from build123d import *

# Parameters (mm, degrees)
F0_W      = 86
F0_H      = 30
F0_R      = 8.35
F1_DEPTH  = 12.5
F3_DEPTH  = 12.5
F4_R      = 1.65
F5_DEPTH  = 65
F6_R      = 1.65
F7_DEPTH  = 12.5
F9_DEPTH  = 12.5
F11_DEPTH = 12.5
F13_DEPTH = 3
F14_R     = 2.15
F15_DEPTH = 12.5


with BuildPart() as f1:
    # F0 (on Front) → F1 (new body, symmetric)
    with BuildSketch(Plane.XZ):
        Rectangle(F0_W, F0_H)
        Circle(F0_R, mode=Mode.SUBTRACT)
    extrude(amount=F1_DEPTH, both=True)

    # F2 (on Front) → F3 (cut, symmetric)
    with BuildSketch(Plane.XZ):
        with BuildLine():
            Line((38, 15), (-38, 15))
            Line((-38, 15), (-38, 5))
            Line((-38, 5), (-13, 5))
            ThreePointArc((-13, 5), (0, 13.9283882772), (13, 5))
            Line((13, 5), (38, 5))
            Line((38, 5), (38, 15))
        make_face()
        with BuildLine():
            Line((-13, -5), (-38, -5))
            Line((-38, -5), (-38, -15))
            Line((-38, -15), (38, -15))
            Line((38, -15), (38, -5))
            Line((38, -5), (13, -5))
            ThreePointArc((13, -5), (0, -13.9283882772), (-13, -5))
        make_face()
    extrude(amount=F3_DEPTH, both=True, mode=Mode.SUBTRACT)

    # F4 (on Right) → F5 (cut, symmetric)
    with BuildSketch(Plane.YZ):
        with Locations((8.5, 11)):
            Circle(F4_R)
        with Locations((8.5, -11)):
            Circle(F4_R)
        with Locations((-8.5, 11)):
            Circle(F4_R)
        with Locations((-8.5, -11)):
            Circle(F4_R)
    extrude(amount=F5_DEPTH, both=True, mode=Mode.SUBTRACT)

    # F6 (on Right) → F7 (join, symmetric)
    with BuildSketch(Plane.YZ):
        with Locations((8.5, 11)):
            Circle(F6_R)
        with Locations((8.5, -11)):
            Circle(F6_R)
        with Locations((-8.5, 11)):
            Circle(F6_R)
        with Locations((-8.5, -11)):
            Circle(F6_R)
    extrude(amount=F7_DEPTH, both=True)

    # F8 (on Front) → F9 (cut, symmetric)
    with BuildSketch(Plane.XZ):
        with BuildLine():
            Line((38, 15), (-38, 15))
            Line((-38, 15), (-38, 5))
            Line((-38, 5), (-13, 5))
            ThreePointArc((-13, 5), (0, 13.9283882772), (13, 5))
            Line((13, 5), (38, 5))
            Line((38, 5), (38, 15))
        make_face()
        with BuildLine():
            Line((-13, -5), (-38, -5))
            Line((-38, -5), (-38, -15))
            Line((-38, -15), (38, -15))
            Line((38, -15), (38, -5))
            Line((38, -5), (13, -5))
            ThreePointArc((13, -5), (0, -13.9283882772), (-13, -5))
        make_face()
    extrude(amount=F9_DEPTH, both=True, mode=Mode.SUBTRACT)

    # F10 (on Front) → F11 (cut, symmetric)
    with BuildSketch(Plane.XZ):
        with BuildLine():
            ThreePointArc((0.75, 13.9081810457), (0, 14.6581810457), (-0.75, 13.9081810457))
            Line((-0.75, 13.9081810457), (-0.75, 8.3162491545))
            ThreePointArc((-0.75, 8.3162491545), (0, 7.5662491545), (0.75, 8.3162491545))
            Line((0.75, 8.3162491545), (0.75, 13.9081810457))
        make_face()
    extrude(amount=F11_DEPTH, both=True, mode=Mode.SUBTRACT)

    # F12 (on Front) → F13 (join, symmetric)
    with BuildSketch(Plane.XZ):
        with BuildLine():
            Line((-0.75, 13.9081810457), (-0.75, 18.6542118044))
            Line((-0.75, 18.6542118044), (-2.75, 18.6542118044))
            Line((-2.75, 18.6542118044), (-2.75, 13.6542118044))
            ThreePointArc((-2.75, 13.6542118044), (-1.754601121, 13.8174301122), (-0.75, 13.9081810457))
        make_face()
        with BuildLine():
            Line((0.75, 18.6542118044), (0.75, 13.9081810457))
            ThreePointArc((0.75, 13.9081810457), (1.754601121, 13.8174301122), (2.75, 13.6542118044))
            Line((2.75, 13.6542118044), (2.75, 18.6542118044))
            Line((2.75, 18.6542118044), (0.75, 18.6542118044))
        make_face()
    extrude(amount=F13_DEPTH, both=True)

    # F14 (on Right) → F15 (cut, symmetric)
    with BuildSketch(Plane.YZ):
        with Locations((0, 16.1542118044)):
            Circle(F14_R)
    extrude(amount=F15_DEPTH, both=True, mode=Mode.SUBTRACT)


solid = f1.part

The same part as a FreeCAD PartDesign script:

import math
import FreeCAD as App
import Part
import Sketcher
from FreeCAD import Vector
Q = App.Units.Quantity

doc = App.newDocument("Part")
params = doc.addObject("Spreadsheet::Sheet", "Params")
for row, (alias, value) in enumerate([
    ("sketch1_diameter", "16.7 mm"),
    ("sketch1_width", "86 mm"),
    ("sketch1_height", "30 mm"),
    ("pad1_length", "25 mm"),
    ("sketch2_width", "76 mm"),
    ("sketch2_width2", "25 mm"),
    ("sketch2_height", "10 mm"),
    ("pocket1_length", "25 mm"),
    ("sketch3_diameter", "3.3 mm"),
    ("pocket2_length", "130 mm"),
    ("sketch4_diameter", "3.3 mm"),
    ("pad2_length", "25 mm"),
    ("sketch5_width", "76 mm"),
    ("sketch5_width2", "25 mm"),
    ("sketch5_height", "10 mm"),
    ("pocket3_length", "25 mm"),
    ("sketch6_radius", "0.75 mm"),
    ("pocket4_length", "25 mm"),
    ("sketch7_width", "2 mm"),
    ("sketch7_height", "5 mm"),
    ("pad3_length", "6 mm"),
    ("sketch8_diameter", "4.3 mm"),
    ("pocket5_length", "25 mm"),
], start=1):
    params.set(f"A{row}", alias)
    params.set(f"B{row}", "=" + value)
    params.setAlias(f"B{row}", alias)

body = doc.addObject("PartDesign::Body", "Body")

# Sketch on XZ plane
sketch1 = body.newObject("Sketcher::SketchObject", "Sketch")
sketch1.AttachmentSupport = (doc.getObject("XZ_Plane"), [""])
sketch1.MapMode = "FlatFace"
sketch1.addGeometry(Part.LineSegment(Vector(-43, 15, 0), Vector(-43, -15, 0)), False)
sketch1.addGeometry(Part.LineSegment(Vector(-43, -15, 0), Vector(43, -15, 0)), False)
sketch1.addGeometry(Part.LineSegment(Vector(43, -15, 0), Vector(43, 15, 0)), False)
sketch1.addGeometry(Part.LineSegment(Vector(43, 15, 0), Vector(-43, 15, 0)), False)
sketch1.addGeometry(Part.Circle(Vector(0, 0, 0), Vector(0, 0, 1), 8), False)
sketch1.addConstraint(Sketcher.Constraint("Coincident", 0, 2, 1, 1))
sketch1.addConstraint(Sketcher.Constraint("Coincident", 1, 2, 2, 1))
sketch1.addConstraint(Sketcher.Constraint("Coincident", 2, 2, 3, 1))
sketch1.addConstraint(Sketcher.Constraint("Coincident", 3, 2, 0, 1))
sketch1.addConstraint(Sketcher.Constraint("Vertical", 0))
sketch1.addConstraint(Sketcher.Constraint("Horizontal", 1))
sketch1.addConstraint(Sketcher.Constraint("Vertical", 2))
sketch1.addConstraint(Sketcher.Constraint("Horizontal", 3))
sketch1.addConstraint(Sketcher.Constraint("Coincident", 4, 3, -1, 1))
sketch1.addConstraint(Sketcher.Constraint("Symmetric", 0, 2, 2, 2, -1, 1))
sketch1.addConstraint(Sketcher.Constraint("Diameter", 4, Q("16.7 mm")))
sketch1.addConstraint(Sketcher.Constraint("DistanceX", 1, 1, 1, 2, Q("86 mm")))
sketch1.addConstraint(Sketcher.Constraint("DistanceY", 0, 2, 0, 1, Q("30 mm")))
sketch1.setExpression("Constraints[10]", "Params.sketch1_diameter")
sketch1.setExpression("Constraints[11]", "Params.sketch1_width")
sketch1.setExpression("Constraints[12]", "Params.sketch1_height")
pad1 = body.newObject("PartDesign::Pad", "Pad")
pad1.Profile = sketch1
pad1.setExpression("Length", "Params.pad1_length")
pad1.Midplane = True

# Sketch on XZ plane
sketch2 = body.newObject("Sketcher::SketchObject", "Sketch001")
sketch2.AttachmentSupport = (doc.getObject("XZ_Plane"), [""])
sketch2.MapMode = "FlatFace"
sketch2.addGeometry(Part.LineSegment(Vector(38, 15, 0), Vector(-38, 15, 0)), False)
sketch2.addGeometry(Part.LineSegment(Vector(-38, 15, 0), Vector(-38, 5, 0)), False)
sketch2.addGeometry(Part.LineSegment(Vector(-38, 5, 0), Vector(-13, 5, 0)), False)
sketch2.addGeometry(Part.ArcOfCircle(Part.Circle(Vector(0, 0, 0), Vector(0, 0, 1), 14), math.radians(21), math.radians(159)), False)
sketch2.addGeometry(Part.LineSegment(Vector(13, 5, 0), Vector(38, 5, 0)), False)
sketch2.addGeometry(Part.LineSegment(Vector(38, 5, 0), Vector(38, 15, 0)), False)
sketch2.addGeometry(Part.LineSegment(Vector(-13, -5, 0), Vector(-38, -5, 0)), False)
sketch2.addGeometry(Part.LineSegment(Vector(-38, -5, 0), Vector(-38, -15, 0)), False)
sketch2.addGeometry(Part.LineSegment(Vector(-38, -15, 0), Vector(38, -15, 0)), False)
sketch2.addGeometry(Part.LineSegment(Vector(38, -15, 0), Vector(38, -5, 0)), False)
sketch2.addGeometry(Part.LineSegment(Vector(38, -5, 0), Vector(13, -5, 0)), False)
sketch2.addGeometry(Part.ArcOfCircle(Part.Circle(Vector(0, 0, 0), Vector(0, 0, 1), 14), math.radians(-159), math.radians(-21)), False)
sketch2.addConstraint(Sketcher.Constraint("Coincident", 0, 2, 1, 1))
sketch2.addConstraint(Sketcher.Constraint("Coincident", 1, 2, 2, 1))
sketch2.addConstraint(Sketcher.Constraint("Coincident", 2, 2, 3, 2))
sketch2.addConstraint(Sketcher.Constraint("Coincident", 3, 1, 4, 1))
sketch2.addConstraint(Sketcher.Constraint("Coincident", 4, 2, 5, 1))
sketch2.addConstraint(Sketcher.Constraint("Coincident", 5, 2, 0, 1))
sketch2.addConstraint(Sketcher.Constraint("Coincident", 6, 2, 7, 1))
sketch2.addConstraint(Sketcher.Constraint("Coincident", 7, 2, 8, 1))
sketch2.addConstraint(Sketcher.Constraint("Coincident", 8, 2, 9, 1))
sketch2.addConstraint(Sketcher.Constraint("Coincident", 9, 2, 10, 1))
sketch2.addConstraint(Sketcher.Constraint("Coincident", 10, 2, 11, 2))
sketch2.addConstraint(Sketcher.Constraint("Coincident", 11, 1, 6, 1))
sketch2.addConstraint(Sketcher.Constraint("Horizontal", 0))
sketch2.addConstraint(Sketcher.Constraint("Vertical", 1))
sketch2.addConstraint(Sketcher.Constraint("Horizontal", 2))
sketch2.addConstraint(Sketcher.Constraint("Horizontal", 4))
sketch2.addConstraint(Sketcher.Constraint("Vertical", 5))
sketch2.addConstraint(Sketcher.Constraint("Horizontal", 6))
sketch2.addConstraint(Sketcher.Constraint("Vertical", 7))
sketch2.addConstraint(Sketcher.Constraint("Horizontal", 8))
sketch2.addConstraint(Sketcher.Constraint("Vertical", 9))
sketch2.addConstraint(Sketcher.Constraint("Horizontal", 10))
sketch2.addConstraint(Sketcher.Constraint("Coincident", 3, 3, -1, 1))
sketch2.addConstraint(Sketcher.Constraint("Coincident", 11, 3, -1, 1))
sketch2.addConstraint(Sketcher.Constraint("Equal", 3, 11))
sketch2.addConstraint(Sketcher.Constraint("Symmetric", 4, 2, 6, 2, -1, 1))
sketch2.addConstraint(Sketcher.Constraint("Symmetric", 0, 2, 8, 2, -1, 1))
sketch2.addConstraint(Sketcher.Constraint("Symmetric", 1, 2, 4, 2, -2))
sketch2.addConstraint(Sketcher.Constraint("Horizontal", 6, 2, 9, 2))
sketch2.addConstraint(Sketcher.Constraint("DistanceX", 0, 2, 0, 1, Q("76 mm")))
sketch2.addConstraint(Sketcher.Constraint("DistanceX", 2, 1, 2, 2, Q("25 mm")))
sketch2.addConstraint(Sketcher.Constraint("DistanceY", 1, 2, 1, 1, Q("10 mm")))
sketch2.addConstraint(Sketcher.Constraint("DistanceY", -1, 1, 0, 2, Q("15 mm")))
sketch2.setExpression("Constraints[29]", "Params.sketch2_width")
sketch2.setExpression("Constraints[30]", "Params.sketch2_width2")
sketch2.setExpression("Constraints[31]", "Params.sketch2_height")
pocket1 = body.newObject("PartDesign::Pocket", "Pocket")
pocket1.Profile = sketch2
pocket1.setExpression("Length", "Params.pocket1_length")
pocket1.Midplane = True

# Sketch on YZ plane
sketch3 = body.newObject("Sketcher::SketchObject", "Sketch002")
sketch3.AttachmentSupport = (doc.getObject("YZ_Plane"), [""])
sketch3.MapMode = "FlatFace"
sketch3.addGeometry(Part.Circle(Vector(8.5, 11, 0), Vector(0, 0, 1), 1.6), False)
sketch3.addGeometry(Part.Circle(Vector(8.5, -11, 0), Vector(0, 0, 1), 1.6), False)
sketch3.addGeometry(Part.Circle(Vector(-8.5, 11, 0), Vector(0, 0, 1), 1.6), False)
sketch3.addGeometry(Part.Circle(Vector(-8.5, -11, 0), Vector(0, 0, 1), 1.6), False)
sketch3.addConstraint(Sketcher.Constraint("Equal", 0, 1))
sketch3.addConstraint(Sketcher.Constraint("Equal", 1, 2))
sketch3.addConstraint(Sketcher.Constraint("Equal", 2, 3))
sketch3.addConstraint(Sketcher.Constraint("Symmetric", 1, 3, 2, 3, -1, 1))
sketch3.addConstraint(Sketcher.Constraint("Symmetric", 0, 3, 3, 3, -1, 1))
sketch3.addConstraint(Sketcher.Constraint("Symmetric", 0, 3, 2, 3, -2))
sketch3.addConstraint(Sketcher.Constraint("Diameter", 0, Q("3.3 mm")))
sketch3.addConstraint(Sketcher.Constraint("DistanceY", -1, 1, 0, 3, Q("11 mm")))
sketch3.addConstraint(Sketcher.Constraint("DistanceX", 2, 3, 0, 3, Q("17 mm")))
sketch3.setExpression("Constraints[6]", "Params.sketch3_diameter")
pocket2 = body.newObject("PartDesign::Pocket", "Pocket001")
pocket2.Profile = sketch3
pocket2.setExpression("Length", "Params.pocket2_length")
pocket2.Midplane = True

# Sketch on YZ plane
sketch4 = body.newObject("Sketcher::SketchObject", "Sketch003")
sketch4.AttachmentSupport = (doc.getObject("YZ_Plane"), [""])
sketch4.MapMode = "FlatFace"
sketch4.addGeometry(Part.Circle(Vector(8.5, 11, 0), Vector(0, 0, 1), 1.6), False)
sketch4.addGeometry(Part.Circle(Vector(8.5, -11, 0), Vector(0, 0, 1), 1.6), False)
sketch4.addGeometry(Part.Circle(Vector(-8.5, 11, 0), Vector(0, 0, 1), 1.6), False)
sketch4.addGeometry(Part.Circle(Vector(-8.5, -11, 0), Vector(0, 0, 1), 1.6), False)
sketch4.addConstraint(Sketcher.Constraint("Equal", 0, 1))
sketch4.addConstraint(Sketcher.Constraint("Equal", 1, 2))
sketch4.addConstraint(Sketcher.Constraint("Equal", 2, 3))
sketch4.addConstraint(Sketcher.Constraint("Symmetric", 1, 3, 2, 3, -1, 1))
sketch4.addConstraint(Sketcher.Constraint("Symmetric", 0, 3, 3, 3, -1, 1))
sketch4.addConstraint(Sketcher.Constraint("Symmetric", 0, 3, 2, 3, -2))
sketch4.addConstraint(Sketcher.Constraint("Diameter", 0, Q("3.3 mm")))
sketch4.addConstraint(Sketcher.Constraint("DistanceY", -1, 1, 0, 3, Q("11 mm")))
sketch4.addConstraint(Sketcher.Constraint("DistanceX", 2, 3, 0, 3, Q("17 mm")))
sketch4.setExpression("Constraints[6]", "Params.sketch4_diameter")
pad2 = body.newObject("PartDesign::Pad", "Pad001")
pad2.Profile = sketch4
pad2.setExpression("Length", "Params.pad2_length")
pad2.Midplane = True

# Sketch on XZ plane
sketch5 = body.newObject("Sketcher::SketchObject", "Sketch004")
sketch5.AttachmentSupport = (doc.getObject("XZ_Plane"), [""])
sketch5.MapMode = "FlatFace"
sketch5.addGeometry(Part.LineSegment(Vector(38, 15, 0), Vector(-38, 15, 0)), False)
sketch5.addGeometry(Part.LineSegment(Vector(-38, 15, 0), Vector(-38, 5, 0)), False)
sketch5.addGeometry(Part.LineSegment(Vector(-38, 5, 0), Vector(-13, 5, 0)), False)
sketch5.addGeometry(Part.ArcOfCircle(Part.Circle(Vector(0, 0, 0), Vector(0, 0, 1), 14), math.radians(21), math.radians(159)), False)
sketch5.addGeometry(Part.LineSegment(Vector(13, 5, 0), Vector(38, 5, 0)), False)
sketch5.addGeometry(Part.LineSegment(Vector(38, 5, 0), Vector(38, 15, 0)), False)
sketch5.addGeometry(Part.LineSegment(Vector(-13, -5, 0), Vector(-38, -5, 0)), False)
sketch5.addGeometry(Part.LineSegment(Vector(-38, -5, 0), Vector(-38, -15, 0)), False)
sketch5.addGeometry(Part.LineSegment(Vector(-38, -15, 0), Vector(38, -15, 0)), False)
sketch5.addGeometry(Part.LineSegment(Vector(38, -15, 0), Vector(38, -5, 0)), False)
sketch5.addGeometry(Part.LineSegment(Vector(38, -5, 0), Vector(13, -5, 0)), False)
sketch5.addGeometry(Part.ArcOfCircle(Part.Circle(Vector(0, 0, 0), Vector(0, 0, 1), 14), math.radians(-159), math.radians(-21)), False)
sketch5.addConstraint(Sketcher.Constraint("Coincident", 0, 2, 1, 1))
sketch5.addConstraint(Sketcher.Constraint("Coincident", 1, 2, 2, 1))
sketch5.addConstraint(Sketcher.Constraint("Coincident", 2, 2, 3, 2))
sketch5.addConstraint(Sketcher.Constraint("Coincident", 3, 1, 4, 1))
sketch5.addConstraint(Sketcher.Constraint("Coincident", 4, 2, 5, 1))
sketch5.addConstraint(Sketcher.Constraint("Coincident", 5, 2, 0, 1))
sketch5.addConstraint(Sketcher.Constraint("Coincident", 6, 2, 7, 1))
sketch5.addConstraint(Sketcher.Constraint("Coincident", 7, 2, 8, 1))
sketch5.addConstraint(Sketcher.Constraint("Coincident", 8, 2, 9, 1))
sketch5.addConstraint(Sketcher.Constraint("Coincident", 9, 2, 10, 1))
sketch5.addConstraint(Sketcher.Constraint("Coincident", 10, 2, 11, 2))
sketch5.addConstraint(Sketcher.Constraint("Coincident", 11, 1, 6, 1))
sketch5.addConstraint(Sketcher.Constraint("Horizontal", 0))
sketch5.addConstraint(Sketcher.Constraint("Vertical", 1))
sketch5.addConstraint(Sketcher.Constraint("Horizontal", 2))
sketch5.addConstraint(Sketcher.Constraint("Horizontal", 4))
sketch5.addConstraint(Sketcher.Constraint("Vertical", 5))
sketch5.addConstraint(Sketcher.Constraint("Horizontal", 6))
sketch5.addConstraint(Sketcher.Constraint("Vertical", 7))
sketch5.addConstraint(Sketcher.Constraint("Horizontal", 8))
sketch5.addConstraint(Sketcher.Constraint("Vertical", 9))
sketch5.addConstraint(Sketcher.Constraint("Horizontal", 10))
sketch5.addConstraint(Sketcher.Constraint("Coincident", 3, 3, -1, 1))
sketch5.addConstraint(Sketcher.Constraint("Coincident", 11, 3, -1, 1))
sketch5.addConstraint(Sketcher.Constraint("Equal", 3, 11))
sketch5.addConstraint(Sketcher.Constraint("Symmetric", 4, 2, 6, 2, -1, 1))
sketch5.addConstraint(Sketcher.Constraint("Symmetric", 0, 2, 8, 2, -1, 1))
sketch5.addConstraint(Sketcher.Constraint("Symmetric", 1, 2, 4, 2, -2))
sketch5.addConstraint(Sketcher.Constraint("Horizontal", 6, 2, 9, 2))
sketch5.addConstraint(Sketcher.Constraint("DistanceX", 0, 2, 0, 1, Q("76 mm")))
sketch5.addConstraint(Sketcher.Constraint("DistanceX", 2, 1, 2, 2, Q("25 mm")))
sketch5.addConstraint(Sketcher.Constraint("DistanceY", 1, 2, 1, 1, Q("10 mm")))
sketch5.addConstraint(Sketcher.Constraint("DistanceY", -1, 1, 0, 2, Q("15 mm")))
sketch5.setExpression("Constraints[29]", "Params.sketch5_width")
sketch5.setExpression("Constraints[30]", "Params.sketch5_width2")
sketch5.setExpression("Constraints[31]", "Params.sketch5_height")
pocket3 = body.newObject("PartDesign::Pocket", "Pocket002")
pocket3.Profile = sketch5
pocket3.setExpression("Length", "Params.pocket3_length")
pocket3.Midplane = True

# Sketch on XZ plane
sketch6 = body.newObject("Sketcher::SketchObject", "Sketch005")
sketch6.AttachmentSupport = (doc.getObject("XZ_Plane"), [""])
sketch6.MapMode = "FlatFace"
sketch6.addGeometry(Part.ArcOfCircle(Part.Circle(Vector(0, 13.9, 0), Vector(0, 0, 1), 0.8), math.radians(0), math.radians(180)), False)
sketch6.addGeometry(Part.LineSegment(Vector(-0.8, 13.9, 0), Vector(-0.8, 8.3, 0)), False)
sketch6.addGeometry(Part.ArcOfCircle(Part.Circle(Vector(0, 8.3, 0), Vector(0, 0, 1), 0.8), math.radians(180), math.radians(360)), False)
sketch6.addGeometry(Part.LineSegment(Vector(0.8, 8.3, 0), Vector(0.8, 13.9, 0)), False)
sketch6.addConstraint(Sketcher.Constraint("Tangent", 0, 2, 1, 1))
sketch6.addConstraint(Sketcher.Constraint("Tangent", 1, 2, 2, 1))
sketch6.addConstraint(Sketcher.Constraint("Tangent", 2, 2, 3, 1))
sketch6.addConstraint(Sketcher.Constraint("Tangent", 3, 2, 0, 1))
sketch6.addConstraint(Sketcher.Constraint("Vertical", 1))
sketch6.addConstraint(Sketcher.Constraint("Vertical", 3))
sketch6.addConstraint(Sketcher.Constraint("PointOnObject", 0, 3, -2))
sketch6.addConstraint(Sketcher.Constraint("Radius", 0, Q("0.75 mm")))
sketch6.addConstraint(Sketcher.Constraint("DistanceY", 1, 2, 1, 1, Q("5.591932 mm")))
sketch6.addConstraint(Sketcher.Constraint("DistanceY", -1, 1, 0, 3, Q("13.908181 mm")))
sketch6.setExpression("Constraints[7]", "Params.sketch6_radius")
pocket4 = body.newObject("PartDesign::Pocket", "Pocket003")
pocket4.Profile = sketch6
pocket4.setExpression("Length", "Params.pocket4_length")
pocket4.Midplane = True

# Sketch on XZ plane
sketch7 = body.newObject("Sketcher::SketchObject", "Sketch006")
sketch7.AttachmentSupport = (doc.getObject("XZ_Plane"), [""])
sketch7.MapMode = "FlatFace"
sketch7.addGeometry(Part.LineSegment(Vector(-0.8, 13.9, 0), Vector(-0.8, 18.7, 0)), False)
sketch7.addGeometry(Part.LineSegment(Vector(-0.8, 18.7, 0), Vector(-2.8, 18.7, 0)), False)
sketch7.addGeometry(Part.LineSegment(Vector(-2.8, 18.7, 0), Vector(-2.8, 13.7, 0)), False)
sketch7.addGeometry(Part.ArcOfCircle(Part.Circle(Vector(0, 0, 0), Vector(0, 0, 1), 13.9), math.radians(93.09), math.radians(101.39)), False)
sketch7.addGeometry(Part.LineSegment(Vector(0.8, 18.7, 0), Vector(0.8, 13.9, 0)), False)
sketch7.addGeometry(Part.ArcOfCircle(Part.Circle(Vector(0, 0, 0), Vector(0, 0, 1), 13.9), math.radians(78.61), math.radians(86.91)), False)
sketch7.addGeometry(Part.LineSegment(Vector(2.8, 13.7, 0), Vector(2.8, 18.7, 0)), False)
sketch7.addGeometry(Part.LineSegment(Vector(2.8, 18.7, 0), Vector(0.8, 18.7, 0)), False)
sketch7.addConstraint(Sketcher.Constraint("Coincident", 0, 2, 1, 1))
sketch7.addConstraint(Sketcher.Constraint("Coincident", 1, 2, 2, 1))
sketch7.addConstraint(Sketcher.Constraint("Coincident", 2, 2, 3, 2))
sketch7.addConstraint(Sketcher.Constraint("Coincident", 3, 1, 0, 1))
sketch7.addConstraint(Sketcher.Constraint("Coincident", 4, 2, 5, 2))
sketch7.addConstraint(Sketcher.Constraint("Coincident", 5, 1, 6, 1))
sketch7.addConstraint(Sketcher.Constraint("Coincident", 6, 2, 7, 1))
sketch7.addConstraint(Sketcher.Constraint("Coincident", 7, 2, 4, 1))
sketch7.addConstraint(Sketcher.Constraint("Vertical", 0))
sketch7.addConstraint(Sketcher.Constraint("Horizontal", 1))
sketch7.addConstraint(Sketcher.Constraint("Vertical", 2))
sketch7.addConstraint(Sketcher.Constraint("Vertical", 4))
sketch7.addConstraint(Sketcher.Constraint("Vertical", 6))
sketch7.addConstraint(Sketcher.Constraint("Horizontal", 7))
sketch7.addConstraint(Sketcher.Constraint("Coincident", 3, 3, -1, 1))
sketch7.addConstraint(Sketcher.Constraint("Coincident", 5, 3, -1, 1))
sketch7.addConstraint(Sketcher.Constraint("Equal", 3, 5))
sketch7.addConstraint(Sketcher.Constraint("Symmetric", 1, 2, 6, 2, -2))
sketch7.addConstraint(Sketcher.Constraint("Horizontal", 3, 1, 4, 2))
sketch7.addConstraint(Sketcher.Constraint("DistanceX", 1, 2, 1, 1, Q("2 mm")))
sketch7.addConstraint(Sketcher.Constraint("DistanceY", 2, 2, 2, 1, Q("5 mm")))
sketch7.addConstraint(Sketcher.Constraint("DistanceX", 3, 1, 4, 2, Q("1.5 mm")))
sketch7.addConstraint(Sketcher.Constraint("Radius", 3, Q("13.928388 mm")))
sketch7.setExpression("Constraints[19]", "Params.sketch7_width")
sketch7.setExpression("Constraints[20]", "Params.sketch7_height")
pad3 = body.newObject("PartDesign::Pad", "Pad002")
pad3.Profile = sketch7
pad3.setExpression("Length", "Params.pad3_length")
pad3.Midplane = True

# Sketch on YZ plane
sketch8 = body.newObject("Sketcher::SketchObject", "Sketch007")
sketch8.AttachmentSupport = (doc.getObject("YZ_Plane"), [""])
sketch8.MapMode = "FlatFace"
sketch8.addGeometry(Part.Circle(Vector(0, 16.2, 0), Vector(0, 0, 1), 2.1), False)
sketch8.addConstraint(Sketcher.Constraint("PointOnObject", 0, 3, -2))
sketch8.addConstraint(Sketcher.Constraint("Diameter", 0, Q("4.3 mm")))
sketch8.addConstraint(Sketcher.Constraint("DistanceY", -1, 1, 0, 3, Q("16.154212 mm")))
sketch8.setExpression("Constraints[1]", "Params.sketch8_diameter")
pocket5 = body.newObject("PartDesign::Pocket", "Pocket004")
pocket5.Profile = sketch8
pocket5.setExpression("Length", "Params.pocket5_length")
pocket5.Midplane = True

doc.recompute()
